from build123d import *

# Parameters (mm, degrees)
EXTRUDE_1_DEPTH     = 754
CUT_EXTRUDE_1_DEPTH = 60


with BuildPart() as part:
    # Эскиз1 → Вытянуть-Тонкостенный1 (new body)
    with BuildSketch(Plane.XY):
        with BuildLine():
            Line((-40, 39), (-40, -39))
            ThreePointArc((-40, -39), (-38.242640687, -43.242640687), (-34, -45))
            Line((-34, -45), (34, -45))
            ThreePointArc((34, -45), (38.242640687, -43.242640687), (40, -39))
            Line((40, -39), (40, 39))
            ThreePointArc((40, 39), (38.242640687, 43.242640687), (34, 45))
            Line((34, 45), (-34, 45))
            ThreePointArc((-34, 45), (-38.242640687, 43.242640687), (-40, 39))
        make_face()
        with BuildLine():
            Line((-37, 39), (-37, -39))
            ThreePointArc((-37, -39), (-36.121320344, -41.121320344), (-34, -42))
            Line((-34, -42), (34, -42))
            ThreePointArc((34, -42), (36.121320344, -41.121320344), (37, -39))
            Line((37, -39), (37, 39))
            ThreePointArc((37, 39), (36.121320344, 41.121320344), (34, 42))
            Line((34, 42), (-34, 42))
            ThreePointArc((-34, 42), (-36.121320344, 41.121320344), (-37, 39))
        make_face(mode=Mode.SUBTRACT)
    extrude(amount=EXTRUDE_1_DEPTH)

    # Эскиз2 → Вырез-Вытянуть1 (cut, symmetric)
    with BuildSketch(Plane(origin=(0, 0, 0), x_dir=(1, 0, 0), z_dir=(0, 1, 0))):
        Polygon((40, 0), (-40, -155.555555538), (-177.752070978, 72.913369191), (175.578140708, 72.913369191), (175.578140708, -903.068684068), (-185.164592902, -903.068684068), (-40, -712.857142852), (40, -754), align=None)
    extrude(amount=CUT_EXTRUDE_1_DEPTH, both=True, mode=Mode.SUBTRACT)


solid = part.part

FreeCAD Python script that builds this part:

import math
import FreeCAD as App
import Part
import Sketcher
Q = App.Units.Quantity

doc = App.newDocument("Part")
params = doc.addObject("Spreadsheet::Sheet", "Params")
for row, (alias, value) in enumerate([
    ("sketch1_radius", "6 mm"),
    ("sketch1_radius2", "3 mm"),
    ("sketch1_width", "68 mm"),
    ("sketch1_height", "78 mm"),
    ("pad1_length", "754 mm"),
    ("sketch2_height", "754 mm"),
    ("pocket1_length", "120 mm"),
], start=1):
    params.set(f"A{row}", alias)
    params.set(f"B{row}", "=" + value)
    params.setAlias(f"B{row}", alias)

body = doc.addObject("PartDesign::Body", "Body")

# Sketch on XY plane
sketch1 = doc.addObject("Sketcher::SketchObject", "Sketch")
body.addObject(sketch1)
sketch1.AttachmentSupport = (doc.XY_Plane, [""])
sketch1.MapMode = "FlatFace"
sketch1.addGeometry(Part.LineSegment(App.Vector(-40, 39, 0), App.Vector(-40, -39, 0)), False)
sketch1.addGeometry(Part.ArcOfCircle(Part.Circle(App.Vector(-34, -39, 0), App.Vector(0, 0, 1), 6), math.radians(180), math.radians(270)), False)
sketch1.addGeometry(Part.LineSegment(App.Vector(-34, -45, 0), App.Vector(34, -45, 0)), False)
sketch1.addGeometry(Part.ArcOfCircle(Part.Circle(App.Vector(34, -39, 0), App.Vector(0, 0, 1), 6), math.radians(-90), math.radians(0)), False)
sketch1.addGeometry(Part.LineSegment(App.Vector(40, -39, 0), App.Vector(40, 39, 0)), False)
sketch1.addGeometry(Part.ArcOfCircle(Part.Circle(App.Vector(34, 39, 0), App.Vector(0, 0, 1), 6), math.radians(0), math.radians(90)), False)
sketch1.addGeometry(Part.LineSegment(App.Vector(34, 45, 0), App.Vector(-34, 45, 0)), False)
sketch1.addGeometry(Part.ArcOfCircle(Part.Circle(App.Vector(-34, 39, 0), App.Vector(0, 0, 1), 6), math.radians(90), math.radians(180)), False)
sketch1.addGeometry(Part.LineSegment(App.Vector(-37, -39, 0), App.Vector(-37, 39, 0)), False)
sketch1.addGeometry(Part.ArcOfCircle(Part.Circle(App.Vector(-34, 39, 0), App.Vector(0, 0, 1), 3), math.radians(90), math.radians(180)), False)
sketch1.addGeometry(Part.LineSegment(App.Vector(-34, 42, 0), App.Vector(34, 42, 0)), False)
sketch1.addGeometry(Part.ArcOfCircle(Part.Circle(App.Vector(34, 39, 0), App.Vector(0, 0, 1), 3), math.radians(0), math.radians(90)), False)
sketch1.addGeometry(Part.LineSegment(App.Vector(37, 39, 0), App.Vector(37, -39, 0)), False)
sketch1.addGeometry(Part.ArcOfCircle(Part.Circle(App.Vector(34, -39, 0), App.Vector(0, 0, 1), 3), math.radians(-90), math.radians(0)), False)
sketch1.addGeometry(Part.LineSegment(App.Vector(34, -42, 0), App.Vector(-34, -42, 0)), False)
sketch1.addGeometry(Part.ArcOfCircle(Part.Circle(App.Vector(-34, -39, 0), App.Vector(0, 0, 1), 3), math.radians(180), math.radians(270)), False)
sketch1.addConstraint(Sketcher.Constraint("Tangent", 0, 2, 1, 1))
sketch1.addConstraint(Sketcher.Constraint("Tangent", 1, 2, 2, 1))
sketch1.addConstraint(Sketcher.Constraint("Tangent", 2, 2, 3, 1))
sketch1.addConstraint(Sketcher.Constraint("Tangent", 3, 2, 4, 1))
sketch1.addConstraint(Sketcher.Constraint("Tangent", 4, 2, 5, 1))
sketch1.addConstraint(Sketcher.Constraint("Tangent", 5, 2, 6, 1))
sketch1.addConstraint(Sketcher.Constraint("Tangent", 6, 2, 7, 1))
sketch1.addConstraint(Sketcher.Constraint("Tangent", 7, 2, 0, 1))
sketch1.addConstraint(Sketcher.Constraint("Tangent", 8, 2, 9, 2))
sketch1.addConstraint(Sketcher.Constraint("Tangent", 9, 1, 10, 1))
sketch1.addConstraint(Sketcher.Constraint("Tangent", 10, 2, 11, 2))
sketch1.addConstraint(Sketcher.Constraint("Tangent", 11, 1, 12, 1))
sketch1.addConstraint(Sketcher.Constraint("Tangent", 12, 2, 13, 2))
sketch1.addConstraint(Sketcher.Constraint("Tangent", 13, 1, 14, 1))
sketch1.addConstraint(Sketcher.Constraint("Tangent", 14, 2, 15, 2))
sketch1.addConstraint(Sketcher.Constraint("Tangent", 15, 1, 8, 1))
sketch1.addConstraint(Sketcher.Constraint("Vertical", 0))
sketch1.addConstraint(Sketcher.Constraint("Horizontal", 2))
sketch1.addConstraint(Sketcher.Constraint("Vertical", 4))
sketch1.addConstraint(Sketcher.Constraint("Horizontal", 6))
sketch1.addConstraint(Sketcher.Constraint("Vertical", 8))
sketch1.addConstraint(Sketcher.Constraint("Horizontal", 10))
sketch1.addConstraint(Sketcher.Constraint("Vertical", 12))
sketch1.addConstraint(Sketcher.Constraint("Horizontal", 14))
sketch1.addConstraint(Sketcher.Constraint("Coincident", 9, 3, 7, 3))
sketch1.addConstraint(Sketcher.Constraint("Coincident", 11, 3, 5, 3))
sketch1.addConstraint(Sketcher.Constraint("Coincident", 13, 3, 3, 3))
sketch1.addConstraint(Sketcher.Constraint("Equal", 1, 3))
sketch1.addConstraint(Sketcher.Constraint("Equal", 3, 5))
sketch1.addConstraint(Sketcher.Constraint("Equal", 5, 7))
sketch1.addConstraint(Sketcher.Constraint("Equal", 13, 15))
sketch1.addConstraint(Sketcher.Constraint("Symmetric", 1, 3, 5, 3, -1, 1))
sketch1.addConstraint(Sketcher.Constraint("Radius", 1, Q("6 mm")))
sketch1.addConstraint(Sketcher.Constraint("Radius", 9, Q("3 mm")))
sketch1.addConstraint(Sketcher.Constraint("DistanceX", 2, 1, 2, 2, Q("68 mm")))
sketch1.addConstraint(Sketcher.Constraint("DistanceY", 0, 2, 0, 1, Q("78 mm")))
sketch1.setExpression("Constraints[32]", "Params.sketch1_radius")
sketch1.setExpression("Constraints[33]", "Params.sketch1_radius2")
sketch1.setExpression("Constraints[34]", "Params.sketch1_width")
sketch1.setExpression("Constraints[35]", "Params.sketch1_height")
pad1 = doc.addObject("PartDesign::Pad", "Pad")
body.addObject(pad1)
pad1.Profile = sketch1
pad1.setExpression("Length", "Params.pad1_length")

# Sketch on XZ plane
sketch2 = doc.addObject("Sketcher::SketchObject", "Sketch001")
body.addObject(sketch2)
sketch2.AttachmentSupport = (doc.XZ_Plane, [""])
sketch2.MapMode = "FlatFace"
sketch2.addGeometry(Part.LineSegment(App.Vector(-40, 156, 0), App.Vector(40, 0, 0)), False)
sketch2.addGeometry(Part.LineSegment(App.Vector(40, 0, 0), App.Vector(40, 754, 0)), False)
sketch2.addGeometry(Part.LineSegment(App.Vector(40, 754, 0), App.Vector(-40, 713, 0)), False)
sketch2.addGeometry(Part.LineSegment(App.Vector(-40, 713, 0), App.Vector(-185, 903, 0)), False)
sketch2.addGeometry(Part.LineSegment(App.Vector(-185, 903, 0), App.Vector(176, 903, 0)), False)
sketch2.addGeometry(Part.LineSegment(App.Vector(176, 903, 0), App.Vector(176, -73, 0)), False)
sketch2.addGeometry(Part.LineSegment(App.Vector(176, -73, 0), App.Vector(-178, -73, 0)), False)
sketch2.addGeometry(Part.LineSegment(App.Vector(-178, -73, 0), App.Vector(-40, 156, 0)), False)
sketch2.addConstraint(Sketcher.Constraint("Coincident", 0, 2, 1, 1))
sketch2.addConstraint(Sketcher.Constraint("Coincident", 1, 2, 2, 1))
sketch2.addConstraint(Sketcher.Constraint("Coincident", 2, 2, 3, 1))
sketch2.addConstraint(Sketcher.Constraint("Coincident", 3, 2, 4, 1))
sketch2.addConstraint(Sketcher.Constraint("Coincident", 4, 2, 5, 1))
sketch2.addConstraint(Sketcher.Constraint("Coincident", 5, 2, 6, 1))
sketch2.addConstraint(Sketcher.Constraint("Coincident", 6, 2, 7, 1))
sketch2.addConstraint(Sketcher.Constraint("Coincident", 7, 2, 0, 1))
sketch2.addConstraint(Sketcher.Constraint("Vertical", 1))
sketch2.addConstraint(Sketcher.Constraint("Horizontal", 4))
sketch2.addConstraint(Sketcher.Constraint("Vertical", 5))
sketch2.addConstraint(Sketcher.Constraint("Horizontal", 6))
sketch2.addConstraint(Sketcher.Constraint("PointOnObject", 0, 2, -1))
sketch2.addConstraint(Sketcher.Constraint("Perpendicular", 0, 2))
sketch2.addConstraint(Sketcher.Constraint("Vertical", 2, 2, 7, 2))
sketch2.addConstraint(Sketcher.Constraint("DistanceY", 1, 1, 1, 2, Q("754 mm")))
sketch2.addConstraint(Sketcher.Constraint("DistanceX", -1, 1, 0, 2, Q("40 mm")))
sketch2.addConstraint(Sketcher.Constraint("DistanceX", 2, 2, -1, 1, Q("40 mm")))
sketch2.addConstraint(Sketcher.Constraint("Distance", 0, Q("174.921499 mm")))
sketch2.addConstraint(Sketcher.Constraint("DistanceX", 6, 2, 6, 1, Q("353.330212 mm")))
sketch2.addConstraint(Sketcher.Constraint("DistanceX", 4, 1, 4, 2, Q("360.742734 mm")))
sketch2.addConstraint(Sketcher.Constraint("DistanceY", 5, 2, 5, 1, Q("975.982053 mm")))
sketch2.addConstraint(Sketcher.Constraint("DistanceX", -1, 1, 4, 2, Q("175.578141 mm")))
sketch2.addConstraint(Sketcher.Constraint("DistanceY", 5, 2, -1, 1, Q("72.913369 mm")))
sketch2.setExpression("Constraints[15]", "Params.sketch2_height")
pocket1 = doc.addObject("PartDesign::Pocket", "Pocket")
body.addObject(pocket1)
pocket1.Profile = sketch2
pocket1.setExpression("Length", "Params.pocket1_length")
pocket1.Midplane = True

doc.recompute()
